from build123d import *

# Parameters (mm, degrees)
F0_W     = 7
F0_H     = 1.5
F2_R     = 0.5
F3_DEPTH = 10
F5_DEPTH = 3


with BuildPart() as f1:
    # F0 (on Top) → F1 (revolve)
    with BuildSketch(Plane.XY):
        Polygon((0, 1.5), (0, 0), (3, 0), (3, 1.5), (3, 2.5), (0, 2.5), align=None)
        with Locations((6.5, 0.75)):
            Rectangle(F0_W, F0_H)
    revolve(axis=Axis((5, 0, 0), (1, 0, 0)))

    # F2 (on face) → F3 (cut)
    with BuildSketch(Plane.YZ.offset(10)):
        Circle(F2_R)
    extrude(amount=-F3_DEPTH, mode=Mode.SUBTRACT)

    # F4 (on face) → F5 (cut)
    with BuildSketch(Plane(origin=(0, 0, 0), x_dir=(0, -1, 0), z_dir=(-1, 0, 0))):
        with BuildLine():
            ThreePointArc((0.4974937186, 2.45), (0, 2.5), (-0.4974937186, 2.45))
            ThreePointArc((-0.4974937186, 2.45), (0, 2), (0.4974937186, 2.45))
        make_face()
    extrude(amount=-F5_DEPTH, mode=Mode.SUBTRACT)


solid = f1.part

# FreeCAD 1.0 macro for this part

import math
import FreeCAD as App
import Part
import Sketcher
from FreeCAD import Vector

doc = App.newDocument("Part")
body = doc.addObject("PartDesign::Body", "Body")

# Sketch on XY plane
sketch1 = doc.addObject("Sketcher::SketchObject", "Sketch")
body.addObject(sketch1)
sketch1.AttachmentSupport = (doc.XY_Plane, [""])
sketch1.MapMode = "FlatFace"
sketch1.addGeometry([
    Part.LineSegment(Vector(0, 0, 0), Vector(10, 0, 0)),  # 0
    Part.LineSegment(Vector(10, 0, 0), Vector(10, 1.5, 0)),  # 1
    Part.LineSegment(Vector(10, 1.5, 0), Vector(3, 1.5, 0)),  # 2
    Part.LineSegment(Vector(3, 1.5, 0), Vector(3, 2.5, 0)),  # 3
    Part.LineSegment(Vector(3, 2.5, 0), Vector(0, 2.5, 0)),  # 4
    Part.LineSegment(Vector(0, 2.5, 0), Vector(0, 0, 0)),  # 5
], False)
sketch1.addConstraint([
    Sketcher.Constraint("Coincident", 0, 2, 1, 1),
    Sketcher.Constraint("Coincident", 1, 2, 2, 1),
    Sketcher.Constraint("Coincident", 2, 2, 3, 1),
    Sketcher.Constraint("Coincident", 3, 2, 4, 1),
    Sketcher.Constraint("Coincident", 4, 2, 5, 1),
    Sketcher.Constraint("Coincident", 5, 2, 0, 1),
    Sketcher.Constraint("Horizontal", 0),
    Sketcher.Constraint("Vertical", 1),
    Sketcher.Constraint("Horizontal", 2),
    Sketcher.Constraint("Vertical", 3),
    Sketcher.Constraint("Horizontal", 4),
    Sketcher.Constraint("Vertical", 5),
    Sketcher.Constraint("Coincident", 5, 2, -1, 1),
    Sketcher.Constraint("DistanceX", 0, 1, 0, 2, 10.0),
    Sketcher.Constraint("DistanceX", 2, 2, 2, 1, 7.0),
    Sketcher.Constraint("DistanceY", 3, 1, 3, 2, 1.0),
    Sketcher.Constraint("DistanceY", 1, 1, 1, 2, 1.5),
])
revolution = doc.addObject("PartDesign::Revolution", "Revolution")
body.addObject(revolution)
revolution.Profile = sketch1
revolution.ReferenceAxis = (sketch1, ["H_Axis"])
revolution.Angle = 360

# Sketch on YZ plane
sketch2 = doc.addObject("Sketcher::SketchObject", "Sketch001")
body.addObject(sketch2)
sketch2.AttachmentSupport = (doc.YZ_Plane, [""])
sketch2.MapMode = "FlatFace"
sketch2.AttachmentOffset = App.Placement(Vector(0, 0, 10), App.Rotation())
sketch2.addGeometry(Part.Circle(Vector(0, 0, 0), Vector(0, 0, 1), 0.5), False)
sketch2.addConstraint([
    Sketcher.Constraint("Coincident", 0, 3, -1, 1),
    Sketcher.Constraint("Diameter", 0, 1.0),
])
pocket1 = doc.addObject("PartDesign::Pocket", "Pocket")
body.addObject(pocket1)
pocket1.Profile = sketch2
pocket1.Length = 10

# Sketch on YZ plane
sketch3 = doc.addObject("Sketcher::SketchObject", "Sketch002")
body.addObject(sketch3)
sketch3.AttachmentSupport = (doc.YZ_Plane, [""])
sketch3.MapMode = "FlatFace"
sketch3.addGeometry([
    Part.ArcOfCircle(Part.Circle(Vector(0, 0, 0), Vector(0, 0, 1), 2.5), math.radians(79), math.radians(101)),
    Part.ArcOfCircle(Part.Circle(Vector(0, 2.5, 0), Vector(0, 0, 1), 0.5), math.radians(-174), math.radians(-6)),
], False)
sketch3.addConstraint([
    Sketcher.Constraint("Coincident", 0, 1, 1, 2),
    Sketcher.Constraint("Coincident", 1, 1, 0, 2),
    Sketcher.Constraint("Coincident", 0, 3, -1, 1),
    Sketcher.Constraint("PointOnObject", 1, 3, -2),
    Sketcher.Constraint("Radius", 0, 2.5),
    Sketcher.Constraint("Radius", 1, 0.5),
    Sketcher.Constraint("DistanceY", -1, 1, 1, 3, 2.5),
])
pocket2 = doc.addObject("PartDesign::Pocket", "Pocket001")
body.addObject(pocket2)
pocket2.Profile = sketch3
pocket2.Length = 3
pocket2.Reversed = True

doc.recompute()
